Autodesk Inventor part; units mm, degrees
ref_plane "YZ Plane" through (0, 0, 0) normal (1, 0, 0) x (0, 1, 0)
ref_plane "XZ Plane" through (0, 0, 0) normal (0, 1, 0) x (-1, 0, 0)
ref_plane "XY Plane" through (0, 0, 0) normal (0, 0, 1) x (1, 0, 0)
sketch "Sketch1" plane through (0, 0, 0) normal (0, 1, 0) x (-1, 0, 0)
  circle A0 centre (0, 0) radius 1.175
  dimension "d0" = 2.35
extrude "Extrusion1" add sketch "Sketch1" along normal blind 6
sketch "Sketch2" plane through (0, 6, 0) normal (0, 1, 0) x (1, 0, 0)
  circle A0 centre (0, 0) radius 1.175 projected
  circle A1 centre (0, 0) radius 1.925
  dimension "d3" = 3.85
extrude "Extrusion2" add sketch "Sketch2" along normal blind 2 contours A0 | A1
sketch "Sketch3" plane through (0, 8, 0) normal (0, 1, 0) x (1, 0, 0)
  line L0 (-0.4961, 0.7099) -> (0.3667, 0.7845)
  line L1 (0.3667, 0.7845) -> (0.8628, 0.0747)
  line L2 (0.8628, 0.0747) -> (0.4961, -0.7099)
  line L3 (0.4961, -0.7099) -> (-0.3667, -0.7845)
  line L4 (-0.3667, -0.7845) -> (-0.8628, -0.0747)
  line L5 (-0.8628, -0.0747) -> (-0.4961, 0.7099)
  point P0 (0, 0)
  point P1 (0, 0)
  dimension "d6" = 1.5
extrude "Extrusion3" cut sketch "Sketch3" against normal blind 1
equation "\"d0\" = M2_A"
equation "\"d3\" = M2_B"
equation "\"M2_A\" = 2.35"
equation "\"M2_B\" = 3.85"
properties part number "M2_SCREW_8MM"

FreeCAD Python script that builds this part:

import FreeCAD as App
import Part
import Sketcher
from FreeCAD import Vector
Q = App.Units.Quantity


def add_polygon(sketch, points):
    """Adds a closed chain of lines whose ends are joined by coincident constraints."""
    first, n = sketch.GeometryCount, len(points)
    for a, b in zip(points, points[1:] + points[:1]):
        sketch.addGeometry(Part.LineSegment(App.Vector(*a, 0), App.Vector(*b, 0)), False)
    for i in range(n):
        sketch.addConstraint(Sketcher.Constraint("Coincident", first + i, 2, first + (i + 1) % n, 1))

doc = App.newDocument("Part")
body = doc.addObject("PartDesign::Body", "Body")

sketch1 = doc.addObject("Sketcher::SketchObject", "Sketch")
body.addObject(sketch1)
sketch1.AttachmentSupport = (doc.XZ_Plane, [""])
sketch1.MapMode = "FlatFace"
sketch1.addGeometry(Part.Circle(Vector(0, 0, 0), Vector(0, 0, 1), 1.2), False)
sketch1.addConstraint([
    Sketcher.Constraint("Coincident", 0, 3, -1, 1),
    Sketcher.Constraint("Diameter", 0, Q("2.35 mm")),
])
pad1 = doc.addObject("PartDesign::Pad", "Pad")
body.addObject(pad1)
pad1.Profile = sketch1
pad1.Length = 6
pad1.Reversed = True

sketch2 = doc.addObject("Sketcher::SketchObject", "Sketch001")
body.addObject(sketch2)
sketch2.AttachmentSupport = (doc.XZ_Plane, [""])
sketch2.MapMode = "FlatFace"
sketch2.AttachmentOffset = App.Placement(Vector(0, 0, -6), App.Rotation())
sketch2.addGeometry(Part.Circle(Vector(0, 0, 0), Vector(0, 0, 1), 1.9), False)
sketch2.addConstraint([
    Sketcher.Constraint("Coincident", 0, 3, -1, 1),
    Sketcher.Constraint("Diameter", 0, Q("3.85 mm")),
])
pad2 = doc.addObject("PartDesign::Pad", "Pad001")
body.addObject(pad2)
pad2.Profile = sketch2
pad2.Length = 2
pad2.Reversed = True

sketch3 = doc.addObject("Sketcher::SketchObject", "Sketch002")
body.addObject(sketch3)
sketch3.AttachmentSupport = (doc.XZ_Plane, [""])
sketch3.MapMode = "FlatFace"
sketch3.AttachmentOffset = App.Placement(Vector(0, 0, -8), App.Rotation())
add_polygon(sketch3, [(0.4, -0.8), (-0.5, -0.7), (-0.9, 0.1), (-0.4, 0.8), (0.5, 0.7), (0.9, -0.1)])
sketch3.addConstraint([
    Sketcher.Constraint("Symmetric", 0, 2, 3, 2, -1, 1),
    Sketcher.Constraint("Symmetric", 1, 2, 4, 2, -1, 1),
    Sketcher.Constraint("Symmetric", 2, 2, 5, 2, -1, 1),
    Sketcher.Constraint("Equal", 0, 1),
    Sketcher.Constraint("Equal", 1, 2),
    Sketcher.Constraint("Angle", 1, Q("115.05 deg")),
    Sketcher.Constraint("Angle", 2, Q("55.0492 deg")),
    Sketcher.Constraint("DistanceY", 0, 2, -1, 1, Q("0.71 mm")),
    Sketcher.Constraint("Distance", 0, Q("0.866 mm")),
])
pocket1 = doc.addObject("PartDesign::Pocket", "Pocket")
body.addObject(pocket1)
pocket1.Profile = sketch3
pocket1.Length = 1
pocket1.Reversed = True

doc.recompute()
